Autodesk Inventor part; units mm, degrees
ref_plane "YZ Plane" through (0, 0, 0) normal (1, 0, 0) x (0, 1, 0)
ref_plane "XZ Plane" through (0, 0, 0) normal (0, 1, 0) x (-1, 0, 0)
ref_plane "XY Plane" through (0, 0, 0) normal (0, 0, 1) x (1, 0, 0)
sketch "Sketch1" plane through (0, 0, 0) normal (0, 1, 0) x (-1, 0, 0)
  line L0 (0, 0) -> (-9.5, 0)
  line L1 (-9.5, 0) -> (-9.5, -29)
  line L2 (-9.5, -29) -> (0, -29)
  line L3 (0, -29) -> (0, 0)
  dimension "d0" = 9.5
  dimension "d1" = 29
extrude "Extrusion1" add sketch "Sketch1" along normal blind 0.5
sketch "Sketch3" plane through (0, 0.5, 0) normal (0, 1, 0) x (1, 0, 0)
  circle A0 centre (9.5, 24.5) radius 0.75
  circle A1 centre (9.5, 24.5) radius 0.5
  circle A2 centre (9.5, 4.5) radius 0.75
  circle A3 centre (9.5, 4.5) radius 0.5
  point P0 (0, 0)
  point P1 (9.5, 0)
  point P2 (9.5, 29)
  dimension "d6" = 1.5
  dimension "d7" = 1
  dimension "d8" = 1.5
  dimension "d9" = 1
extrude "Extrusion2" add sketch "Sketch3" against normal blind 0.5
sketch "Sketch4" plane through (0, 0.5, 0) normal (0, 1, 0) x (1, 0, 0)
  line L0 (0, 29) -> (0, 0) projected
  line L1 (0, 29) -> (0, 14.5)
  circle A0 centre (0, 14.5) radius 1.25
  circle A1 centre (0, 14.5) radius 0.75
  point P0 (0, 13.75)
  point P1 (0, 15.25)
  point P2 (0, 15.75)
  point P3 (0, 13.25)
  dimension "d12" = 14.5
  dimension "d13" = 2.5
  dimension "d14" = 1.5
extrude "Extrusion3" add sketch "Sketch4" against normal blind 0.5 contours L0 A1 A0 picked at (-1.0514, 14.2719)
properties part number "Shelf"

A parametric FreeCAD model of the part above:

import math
import FreeCAD as App
import Part
import Sketcher


def add_polygon(sketch, points):
    """Adds a closed chain of lines whose ends are joined by coincident constraints."""
    first, n = sketch.GeometryCount, len(points)
    for a, b in zip(points, points[1:] + points[:1]):
        sketch.addGeometry(Part.LineSegment(App.Vector(*a, 0), App.Vector(*b, 0)), False)
    for i in range(n):
        sketch.addConstraint(Sketcher.Constraint("Coincident", first + i, 2, first + (i + 1) % n, 1))

doc = App.newDocument("Part")
body = doc.addObject("PartDesign::Body", "Body")

# Sketch on XZ plane
sketch1 = body.newObject("Sketcher::SketchObject", "Sketch")
sketch1.AttachmentSupport = (doc.getObject("XZ_Plane"), [""])
sketch1.MapMode = "FlatFace"
add_polygon(sketch1, [(0, -29), (0, 0), (9.5, 0), (9.5, -29)])  # lines 0-3
sketch1.addConstraint(Sketcher.Constraint("Vertical", 0))
sketch1.addConstraint(Sketcher.Constraint("Horizontal", 1))
sketch1.addConstraint(Sketcher.Constraint("Vertical", 2))
sketch1.addConstraint(Sketcher.Constraint("Horizontal", 3))
sketch1.addConstraint(Sketcher.Constraint("Coincident", 0, 2, -1, 1))
sketch1.addConstraint(Sketcher.Constraint("DistanceY", 0, 1, 0, 2, 29.0))
sketch1.addConstraint(Sketcher.Constraint("DistanceX", 1, 1, 1, 2, 9.5))
pad1 = body.newObject("PartDesign::Pad", "Pad")
pad1.Profile = sketch1
pad1.Length = 0.5
pad1.Reversed = True

# Sketch on XZ plane
sketch2 = body.newObject("Sketcher::SketchObject", "Sketch001")
sketch2.AttachmentSupport = (doc.getObject("XZ_Plane"), [""])
sketch2.MapMode = "FlatFace"
sketch2.AttachmentOffset = App.Placement(App.Vector(0, 0, -0.5), App.Rotation())
sketch2.addGeometry(Part.Circle(App.Vector(9.5, -24.5, 0), App.Vector(0, 0, 1), 0.75), False)
sketch2.addGeometry(Part.Circle(App.Vector(9.5, -24.5, 0), App.Vector(0, 0, 1), 0.5), False)
sketch2.addGeometry(Part.Circle(App.Vector(9.5, -4.5, 0), App.Vector(0, 0, 1), 0.75), False)
sketch2.addGeometry(Part.Circle(App.Vector(9.5, -4.5, 0), App.Vector(0, 0, 1), 0.5), False)
sketch2.addConstraint(Sketcher.Constraint("Coincident", 1, 3, 0, 3))
sketch2.addConstraint(Sketcher.Constraint("Coincident", 3, 3, 2, 3))
sketch2.addConstraint(Sketcher.Constraint("Equal", 0, 2))
sketch2.addConstraint(Sketcher.Constraint("Equal", 1, 3))
sketch2.addConstraint(Sketcher.Constraint("Vertical", 1, 3, 2, 3))
sketch2.addConstraint(Sketcher.Constraint("Diameter", 1, 1.0))
sketch2.addConstraint(Sketcher.Constraint("Diameter", 0, 1.5))
sketch2.addConstraint(Sketcher.Constraint("DistanceY", 0, 3, 2, 3, 20.0))
sketch2.addConstraint(Sketcher.Constraint("DistanceX", -1, 1, 0, 3, 9.5))
sketch2.addConstraint(Sketcher.Constraint("DistanceY", 0, 3, -1, 1, 24.5))
pad2 = body.newObject("PartDesign::Pad", "Pad001")
pad2.Profile = sketch2
pad2.Length = 0.5

# Sketch on XZ plane
sketch3 = body.newObject("Sketcher::SketchObject", "Sketch002")
sketch3.AttachmentSupport = (doc.getObject("XZ_Plane"), [""])
sketch3.MapMode = "FlatFace"
sketch3.AttachmentOffset = App.Placement(App.Vector(0, 0, -0.5), App.Rotation())
sketch3.addGeometry(Part.LineSegment(App.Vector(0, -15.25, 0), App.Vector(0, -15.75, 0)), False)
sketch3.addGeometry(Part.ArcOfCircle(Part.Circle(App.Vector(0, -14.5, 0), App.Vector(0, 0, 1), 1.25), math.radians(90), math.radians(270)), False)
sketch3.addGeometry(Part.LineSegment(App.Vector(0, -13.25, 0), App.Vector(0, -13.75, 0)), False)
sketch3.addGeometry(Part.ArcOfCircle(Part.Circle(App.Vector(0, -14.5, 0), App.Vector(0, 0, 1), 0.75), math.radians(90), math.radians(270)), False)
sketch3.addConstraint(Sketcher.Constraint("Coincident", 0, 2, 1, 2))
sketch3.addConstraint(Sketcher.Constraint("Coincident", 1, 1, 2, 1))
sketch3.addConstraint(Sketcher.Constraint("Coincident", 2, 2, 3, 1))
sketch3.addConstraint(Sketcher.Constraint("Coincident", 3, 2, 0, 1))
sketch3.addConstraint(Sketcher.Constraint("Vertical", 0))
sketch3.addConstraint(Sketcher.Constraint("Vertical", 2))
sketch3.addConstraint(Sketcher.Constraint("Coincident", 3, 3, 1, 3))
sketch3.addConstraint(Sketcher.Constraint("PointOnObject", 1, 3, -2))
sketch3.addConstraint(Sketcher.Constraint("PointOnObject", 0, 2, -2))
sketch3.addConstraint(Sketcher.Constraint("PointOnObject", 1, 1, -2))
sketch3.addConstraint(Sketcher.Constraint("Radius", 1, 1.25))
sketch3.addConstraint(Sketcher.Constraint("Radius", 3, 0.75))
sketch3.addConstraint(Sketcher.Constraint("DistanceY", 1, 3, -1, 1, 14.5))
pad3 = body.newObject("PartDesign::Pad", "Pad002")
pad3.Profile = sketch3
pad3.Length = 0.5

doc.recompute()
